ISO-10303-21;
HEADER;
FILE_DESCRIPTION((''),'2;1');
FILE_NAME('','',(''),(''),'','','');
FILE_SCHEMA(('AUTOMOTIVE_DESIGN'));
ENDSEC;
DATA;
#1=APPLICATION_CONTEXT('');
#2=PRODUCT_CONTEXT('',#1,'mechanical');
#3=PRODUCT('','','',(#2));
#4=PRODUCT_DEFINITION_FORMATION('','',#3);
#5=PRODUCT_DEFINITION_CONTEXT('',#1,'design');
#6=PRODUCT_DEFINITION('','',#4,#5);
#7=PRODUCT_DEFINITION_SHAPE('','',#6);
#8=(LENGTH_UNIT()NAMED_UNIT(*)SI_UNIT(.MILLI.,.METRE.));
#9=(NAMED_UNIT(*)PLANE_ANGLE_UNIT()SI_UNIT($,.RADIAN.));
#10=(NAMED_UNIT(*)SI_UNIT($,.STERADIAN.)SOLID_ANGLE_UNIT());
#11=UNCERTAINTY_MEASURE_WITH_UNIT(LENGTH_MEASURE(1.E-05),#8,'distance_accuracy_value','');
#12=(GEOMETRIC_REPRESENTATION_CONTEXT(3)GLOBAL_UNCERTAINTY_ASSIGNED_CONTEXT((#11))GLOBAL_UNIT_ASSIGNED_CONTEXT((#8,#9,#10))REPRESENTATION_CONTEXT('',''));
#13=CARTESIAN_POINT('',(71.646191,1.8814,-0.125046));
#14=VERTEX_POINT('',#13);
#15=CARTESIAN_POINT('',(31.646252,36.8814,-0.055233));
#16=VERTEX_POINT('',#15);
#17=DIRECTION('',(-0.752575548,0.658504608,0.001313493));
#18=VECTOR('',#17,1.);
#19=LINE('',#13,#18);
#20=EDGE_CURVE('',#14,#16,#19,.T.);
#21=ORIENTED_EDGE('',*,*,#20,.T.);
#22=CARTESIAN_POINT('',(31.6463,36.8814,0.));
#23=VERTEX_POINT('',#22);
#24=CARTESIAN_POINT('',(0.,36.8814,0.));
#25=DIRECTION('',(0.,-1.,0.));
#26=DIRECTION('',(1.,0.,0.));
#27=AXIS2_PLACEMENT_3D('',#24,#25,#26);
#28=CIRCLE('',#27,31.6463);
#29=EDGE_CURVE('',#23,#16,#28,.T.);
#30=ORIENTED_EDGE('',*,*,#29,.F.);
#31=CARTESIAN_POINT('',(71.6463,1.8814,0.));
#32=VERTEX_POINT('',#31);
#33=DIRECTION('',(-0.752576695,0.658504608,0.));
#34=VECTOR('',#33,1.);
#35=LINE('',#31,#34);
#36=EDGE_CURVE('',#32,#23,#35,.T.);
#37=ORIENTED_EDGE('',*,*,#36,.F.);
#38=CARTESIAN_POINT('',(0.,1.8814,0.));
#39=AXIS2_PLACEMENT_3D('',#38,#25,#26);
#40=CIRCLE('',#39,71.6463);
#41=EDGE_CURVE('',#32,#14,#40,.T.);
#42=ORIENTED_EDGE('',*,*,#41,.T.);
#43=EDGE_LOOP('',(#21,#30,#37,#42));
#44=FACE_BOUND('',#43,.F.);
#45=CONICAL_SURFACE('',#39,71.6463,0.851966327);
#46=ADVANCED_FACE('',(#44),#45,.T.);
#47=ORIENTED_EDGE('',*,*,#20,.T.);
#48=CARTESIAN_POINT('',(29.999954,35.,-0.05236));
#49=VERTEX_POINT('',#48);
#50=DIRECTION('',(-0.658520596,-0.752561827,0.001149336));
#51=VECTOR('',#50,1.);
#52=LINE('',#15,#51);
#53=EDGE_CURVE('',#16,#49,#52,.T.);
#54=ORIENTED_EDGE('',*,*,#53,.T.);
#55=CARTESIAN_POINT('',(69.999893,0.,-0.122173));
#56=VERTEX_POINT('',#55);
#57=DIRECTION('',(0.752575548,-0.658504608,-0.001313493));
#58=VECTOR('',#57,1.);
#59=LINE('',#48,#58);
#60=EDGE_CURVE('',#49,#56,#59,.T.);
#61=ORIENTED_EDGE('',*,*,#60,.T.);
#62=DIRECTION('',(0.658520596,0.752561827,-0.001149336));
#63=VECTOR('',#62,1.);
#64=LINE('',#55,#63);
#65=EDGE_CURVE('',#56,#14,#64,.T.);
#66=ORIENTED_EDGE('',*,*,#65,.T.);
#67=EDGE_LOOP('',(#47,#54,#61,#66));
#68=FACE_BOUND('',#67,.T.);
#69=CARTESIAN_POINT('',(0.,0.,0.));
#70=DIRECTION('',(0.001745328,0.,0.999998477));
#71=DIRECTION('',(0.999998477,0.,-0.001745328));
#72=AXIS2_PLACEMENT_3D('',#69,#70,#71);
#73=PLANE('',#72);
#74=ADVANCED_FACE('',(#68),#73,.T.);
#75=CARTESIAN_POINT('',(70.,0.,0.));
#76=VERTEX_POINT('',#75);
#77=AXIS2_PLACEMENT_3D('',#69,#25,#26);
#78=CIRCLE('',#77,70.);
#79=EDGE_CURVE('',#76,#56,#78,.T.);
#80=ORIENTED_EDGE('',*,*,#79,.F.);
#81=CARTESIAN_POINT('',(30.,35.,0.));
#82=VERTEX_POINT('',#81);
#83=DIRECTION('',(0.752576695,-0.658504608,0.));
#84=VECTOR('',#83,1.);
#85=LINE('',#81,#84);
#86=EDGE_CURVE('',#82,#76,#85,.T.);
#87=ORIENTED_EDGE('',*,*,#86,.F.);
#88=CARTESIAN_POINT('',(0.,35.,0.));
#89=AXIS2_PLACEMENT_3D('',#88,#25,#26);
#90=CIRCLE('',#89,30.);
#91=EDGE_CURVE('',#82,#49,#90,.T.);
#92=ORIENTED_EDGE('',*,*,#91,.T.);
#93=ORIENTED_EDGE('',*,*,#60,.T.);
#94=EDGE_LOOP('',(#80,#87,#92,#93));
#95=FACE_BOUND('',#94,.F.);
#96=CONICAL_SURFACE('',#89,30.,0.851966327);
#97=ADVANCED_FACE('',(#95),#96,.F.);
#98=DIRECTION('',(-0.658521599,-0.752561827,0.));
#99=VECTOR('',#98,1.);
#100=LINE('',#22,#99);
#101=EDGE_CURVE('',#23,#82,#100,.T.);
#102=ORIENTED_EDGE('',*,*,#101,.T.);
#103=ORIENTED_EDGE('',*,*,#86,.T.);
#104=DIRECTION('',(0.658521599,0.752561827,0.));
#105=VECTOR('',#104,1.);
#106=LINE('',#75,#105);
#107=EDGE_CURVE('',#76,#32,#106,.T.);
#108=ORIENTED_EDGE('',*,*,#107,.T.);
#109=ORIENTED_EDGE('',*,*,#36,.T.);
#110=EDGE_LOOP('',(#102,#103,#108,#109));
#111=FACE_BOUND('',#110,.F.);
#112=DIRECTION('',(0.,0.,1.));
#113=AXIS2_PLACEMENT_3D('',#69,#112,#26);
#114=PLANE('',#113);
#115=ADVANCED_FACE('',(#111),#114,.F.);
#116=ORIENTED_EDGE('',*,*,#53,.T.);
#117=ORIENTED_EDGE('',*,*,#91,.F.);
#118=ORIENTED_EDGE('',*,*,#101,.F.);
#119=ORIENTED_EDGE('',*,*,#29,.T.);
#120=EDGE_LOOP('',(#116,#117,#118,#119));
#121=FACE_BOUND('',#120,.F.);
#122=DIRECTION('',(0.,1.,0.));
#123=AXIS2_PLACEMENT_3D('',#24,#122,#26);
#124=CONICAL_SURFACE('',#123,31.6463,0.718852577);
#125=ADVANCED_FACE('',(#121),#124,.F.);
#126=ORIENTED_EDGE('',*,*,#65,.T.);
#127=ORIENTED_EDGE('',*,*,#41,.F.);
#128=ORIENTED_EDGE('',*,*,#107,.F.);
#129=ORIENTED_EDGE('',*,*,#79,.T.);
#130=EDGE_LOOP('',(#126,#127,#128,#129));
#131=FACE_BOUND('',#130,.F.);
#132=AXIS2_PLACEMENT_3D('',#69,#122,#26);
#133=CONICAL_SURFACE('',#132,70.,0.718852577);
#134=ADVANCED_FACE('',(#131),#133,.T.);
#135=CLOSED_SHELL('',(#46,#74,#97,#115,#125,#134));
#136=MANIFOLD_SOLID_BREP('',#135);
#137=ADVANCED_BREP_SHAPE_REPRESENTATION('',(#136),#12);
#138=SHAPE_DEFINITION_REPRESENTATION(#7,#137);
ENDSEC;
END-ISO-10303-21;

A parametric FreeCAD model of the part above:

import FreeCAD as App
import Part
import Sketcher
from FreeCAD import Vector


def add_polygon(sketch, points):
    """Adds a closed chain of lines whose ends are joined by coincident constraints."""
    first, n = sketch.GeometryCount, len(points)
    for a, b in zip(points, points[1:] + points[:1]):
        sketch.addGeometry(Part.LineSegment(App.Vector(*a, 0), App.Vector(*b, 0)), False)
    for i in range(n):
        sketch.addConstraint(Sketcher.Constraint("Coincident", first + i, 2, first + (i + 1) % n, 1))

doc = App.newDocument("Part")
body = doc.addObject("PartDesign::Body", "Body")

sketch1 = body.newObject("Sketcher::SketchObject", "Sketch")
sketch1.AttachmentSupport = (doc.getObject("XY_Plane"), [""])
sketch1.MapMode = "FlatFace"
add_polygon(sketch1, [(30, 35), (70, 0), (71.6, 1.9), (31.6, 36.9)])
sketch1.addConstraint(Sketcher.Constraint("PointOnObject", 0, 2, -1))
sketch1.addConstraint(Sketcher.Constraint("Perpendicular", 0, 1))
sketch1.addConstraint(Sketcher.Constraint("Perpendicular", 1, 2))
sketch1.addConstraint(Sketcher.Constraint("Perpendicular", 2, 3))
sketch1.addConstraint(Sketcher.Constraint("DistanceX", -1, 1, 0, 2, 70.0))
sketch1.addConstraint(Sketcher.Constraint("DistanceX", -1, 1, 3, 2, 30.0))
sketch1.addConstraint(Sketcher.Constraint("DistanceY", -1, 1, 3, 2, 35.0))
sketch1.addConstraint(Sketcher.Constraint("Distance", 1, 2.5))
revolution = body.newObject("PartDesign::Revolution", "Revolution")
revolution.Profile = sketch1
revolution.ReferenceAxis = (sketch1, ["V_Axis"])
revolution.Angle = 359.9
revolution.Reversed = True

doc.recompute()
